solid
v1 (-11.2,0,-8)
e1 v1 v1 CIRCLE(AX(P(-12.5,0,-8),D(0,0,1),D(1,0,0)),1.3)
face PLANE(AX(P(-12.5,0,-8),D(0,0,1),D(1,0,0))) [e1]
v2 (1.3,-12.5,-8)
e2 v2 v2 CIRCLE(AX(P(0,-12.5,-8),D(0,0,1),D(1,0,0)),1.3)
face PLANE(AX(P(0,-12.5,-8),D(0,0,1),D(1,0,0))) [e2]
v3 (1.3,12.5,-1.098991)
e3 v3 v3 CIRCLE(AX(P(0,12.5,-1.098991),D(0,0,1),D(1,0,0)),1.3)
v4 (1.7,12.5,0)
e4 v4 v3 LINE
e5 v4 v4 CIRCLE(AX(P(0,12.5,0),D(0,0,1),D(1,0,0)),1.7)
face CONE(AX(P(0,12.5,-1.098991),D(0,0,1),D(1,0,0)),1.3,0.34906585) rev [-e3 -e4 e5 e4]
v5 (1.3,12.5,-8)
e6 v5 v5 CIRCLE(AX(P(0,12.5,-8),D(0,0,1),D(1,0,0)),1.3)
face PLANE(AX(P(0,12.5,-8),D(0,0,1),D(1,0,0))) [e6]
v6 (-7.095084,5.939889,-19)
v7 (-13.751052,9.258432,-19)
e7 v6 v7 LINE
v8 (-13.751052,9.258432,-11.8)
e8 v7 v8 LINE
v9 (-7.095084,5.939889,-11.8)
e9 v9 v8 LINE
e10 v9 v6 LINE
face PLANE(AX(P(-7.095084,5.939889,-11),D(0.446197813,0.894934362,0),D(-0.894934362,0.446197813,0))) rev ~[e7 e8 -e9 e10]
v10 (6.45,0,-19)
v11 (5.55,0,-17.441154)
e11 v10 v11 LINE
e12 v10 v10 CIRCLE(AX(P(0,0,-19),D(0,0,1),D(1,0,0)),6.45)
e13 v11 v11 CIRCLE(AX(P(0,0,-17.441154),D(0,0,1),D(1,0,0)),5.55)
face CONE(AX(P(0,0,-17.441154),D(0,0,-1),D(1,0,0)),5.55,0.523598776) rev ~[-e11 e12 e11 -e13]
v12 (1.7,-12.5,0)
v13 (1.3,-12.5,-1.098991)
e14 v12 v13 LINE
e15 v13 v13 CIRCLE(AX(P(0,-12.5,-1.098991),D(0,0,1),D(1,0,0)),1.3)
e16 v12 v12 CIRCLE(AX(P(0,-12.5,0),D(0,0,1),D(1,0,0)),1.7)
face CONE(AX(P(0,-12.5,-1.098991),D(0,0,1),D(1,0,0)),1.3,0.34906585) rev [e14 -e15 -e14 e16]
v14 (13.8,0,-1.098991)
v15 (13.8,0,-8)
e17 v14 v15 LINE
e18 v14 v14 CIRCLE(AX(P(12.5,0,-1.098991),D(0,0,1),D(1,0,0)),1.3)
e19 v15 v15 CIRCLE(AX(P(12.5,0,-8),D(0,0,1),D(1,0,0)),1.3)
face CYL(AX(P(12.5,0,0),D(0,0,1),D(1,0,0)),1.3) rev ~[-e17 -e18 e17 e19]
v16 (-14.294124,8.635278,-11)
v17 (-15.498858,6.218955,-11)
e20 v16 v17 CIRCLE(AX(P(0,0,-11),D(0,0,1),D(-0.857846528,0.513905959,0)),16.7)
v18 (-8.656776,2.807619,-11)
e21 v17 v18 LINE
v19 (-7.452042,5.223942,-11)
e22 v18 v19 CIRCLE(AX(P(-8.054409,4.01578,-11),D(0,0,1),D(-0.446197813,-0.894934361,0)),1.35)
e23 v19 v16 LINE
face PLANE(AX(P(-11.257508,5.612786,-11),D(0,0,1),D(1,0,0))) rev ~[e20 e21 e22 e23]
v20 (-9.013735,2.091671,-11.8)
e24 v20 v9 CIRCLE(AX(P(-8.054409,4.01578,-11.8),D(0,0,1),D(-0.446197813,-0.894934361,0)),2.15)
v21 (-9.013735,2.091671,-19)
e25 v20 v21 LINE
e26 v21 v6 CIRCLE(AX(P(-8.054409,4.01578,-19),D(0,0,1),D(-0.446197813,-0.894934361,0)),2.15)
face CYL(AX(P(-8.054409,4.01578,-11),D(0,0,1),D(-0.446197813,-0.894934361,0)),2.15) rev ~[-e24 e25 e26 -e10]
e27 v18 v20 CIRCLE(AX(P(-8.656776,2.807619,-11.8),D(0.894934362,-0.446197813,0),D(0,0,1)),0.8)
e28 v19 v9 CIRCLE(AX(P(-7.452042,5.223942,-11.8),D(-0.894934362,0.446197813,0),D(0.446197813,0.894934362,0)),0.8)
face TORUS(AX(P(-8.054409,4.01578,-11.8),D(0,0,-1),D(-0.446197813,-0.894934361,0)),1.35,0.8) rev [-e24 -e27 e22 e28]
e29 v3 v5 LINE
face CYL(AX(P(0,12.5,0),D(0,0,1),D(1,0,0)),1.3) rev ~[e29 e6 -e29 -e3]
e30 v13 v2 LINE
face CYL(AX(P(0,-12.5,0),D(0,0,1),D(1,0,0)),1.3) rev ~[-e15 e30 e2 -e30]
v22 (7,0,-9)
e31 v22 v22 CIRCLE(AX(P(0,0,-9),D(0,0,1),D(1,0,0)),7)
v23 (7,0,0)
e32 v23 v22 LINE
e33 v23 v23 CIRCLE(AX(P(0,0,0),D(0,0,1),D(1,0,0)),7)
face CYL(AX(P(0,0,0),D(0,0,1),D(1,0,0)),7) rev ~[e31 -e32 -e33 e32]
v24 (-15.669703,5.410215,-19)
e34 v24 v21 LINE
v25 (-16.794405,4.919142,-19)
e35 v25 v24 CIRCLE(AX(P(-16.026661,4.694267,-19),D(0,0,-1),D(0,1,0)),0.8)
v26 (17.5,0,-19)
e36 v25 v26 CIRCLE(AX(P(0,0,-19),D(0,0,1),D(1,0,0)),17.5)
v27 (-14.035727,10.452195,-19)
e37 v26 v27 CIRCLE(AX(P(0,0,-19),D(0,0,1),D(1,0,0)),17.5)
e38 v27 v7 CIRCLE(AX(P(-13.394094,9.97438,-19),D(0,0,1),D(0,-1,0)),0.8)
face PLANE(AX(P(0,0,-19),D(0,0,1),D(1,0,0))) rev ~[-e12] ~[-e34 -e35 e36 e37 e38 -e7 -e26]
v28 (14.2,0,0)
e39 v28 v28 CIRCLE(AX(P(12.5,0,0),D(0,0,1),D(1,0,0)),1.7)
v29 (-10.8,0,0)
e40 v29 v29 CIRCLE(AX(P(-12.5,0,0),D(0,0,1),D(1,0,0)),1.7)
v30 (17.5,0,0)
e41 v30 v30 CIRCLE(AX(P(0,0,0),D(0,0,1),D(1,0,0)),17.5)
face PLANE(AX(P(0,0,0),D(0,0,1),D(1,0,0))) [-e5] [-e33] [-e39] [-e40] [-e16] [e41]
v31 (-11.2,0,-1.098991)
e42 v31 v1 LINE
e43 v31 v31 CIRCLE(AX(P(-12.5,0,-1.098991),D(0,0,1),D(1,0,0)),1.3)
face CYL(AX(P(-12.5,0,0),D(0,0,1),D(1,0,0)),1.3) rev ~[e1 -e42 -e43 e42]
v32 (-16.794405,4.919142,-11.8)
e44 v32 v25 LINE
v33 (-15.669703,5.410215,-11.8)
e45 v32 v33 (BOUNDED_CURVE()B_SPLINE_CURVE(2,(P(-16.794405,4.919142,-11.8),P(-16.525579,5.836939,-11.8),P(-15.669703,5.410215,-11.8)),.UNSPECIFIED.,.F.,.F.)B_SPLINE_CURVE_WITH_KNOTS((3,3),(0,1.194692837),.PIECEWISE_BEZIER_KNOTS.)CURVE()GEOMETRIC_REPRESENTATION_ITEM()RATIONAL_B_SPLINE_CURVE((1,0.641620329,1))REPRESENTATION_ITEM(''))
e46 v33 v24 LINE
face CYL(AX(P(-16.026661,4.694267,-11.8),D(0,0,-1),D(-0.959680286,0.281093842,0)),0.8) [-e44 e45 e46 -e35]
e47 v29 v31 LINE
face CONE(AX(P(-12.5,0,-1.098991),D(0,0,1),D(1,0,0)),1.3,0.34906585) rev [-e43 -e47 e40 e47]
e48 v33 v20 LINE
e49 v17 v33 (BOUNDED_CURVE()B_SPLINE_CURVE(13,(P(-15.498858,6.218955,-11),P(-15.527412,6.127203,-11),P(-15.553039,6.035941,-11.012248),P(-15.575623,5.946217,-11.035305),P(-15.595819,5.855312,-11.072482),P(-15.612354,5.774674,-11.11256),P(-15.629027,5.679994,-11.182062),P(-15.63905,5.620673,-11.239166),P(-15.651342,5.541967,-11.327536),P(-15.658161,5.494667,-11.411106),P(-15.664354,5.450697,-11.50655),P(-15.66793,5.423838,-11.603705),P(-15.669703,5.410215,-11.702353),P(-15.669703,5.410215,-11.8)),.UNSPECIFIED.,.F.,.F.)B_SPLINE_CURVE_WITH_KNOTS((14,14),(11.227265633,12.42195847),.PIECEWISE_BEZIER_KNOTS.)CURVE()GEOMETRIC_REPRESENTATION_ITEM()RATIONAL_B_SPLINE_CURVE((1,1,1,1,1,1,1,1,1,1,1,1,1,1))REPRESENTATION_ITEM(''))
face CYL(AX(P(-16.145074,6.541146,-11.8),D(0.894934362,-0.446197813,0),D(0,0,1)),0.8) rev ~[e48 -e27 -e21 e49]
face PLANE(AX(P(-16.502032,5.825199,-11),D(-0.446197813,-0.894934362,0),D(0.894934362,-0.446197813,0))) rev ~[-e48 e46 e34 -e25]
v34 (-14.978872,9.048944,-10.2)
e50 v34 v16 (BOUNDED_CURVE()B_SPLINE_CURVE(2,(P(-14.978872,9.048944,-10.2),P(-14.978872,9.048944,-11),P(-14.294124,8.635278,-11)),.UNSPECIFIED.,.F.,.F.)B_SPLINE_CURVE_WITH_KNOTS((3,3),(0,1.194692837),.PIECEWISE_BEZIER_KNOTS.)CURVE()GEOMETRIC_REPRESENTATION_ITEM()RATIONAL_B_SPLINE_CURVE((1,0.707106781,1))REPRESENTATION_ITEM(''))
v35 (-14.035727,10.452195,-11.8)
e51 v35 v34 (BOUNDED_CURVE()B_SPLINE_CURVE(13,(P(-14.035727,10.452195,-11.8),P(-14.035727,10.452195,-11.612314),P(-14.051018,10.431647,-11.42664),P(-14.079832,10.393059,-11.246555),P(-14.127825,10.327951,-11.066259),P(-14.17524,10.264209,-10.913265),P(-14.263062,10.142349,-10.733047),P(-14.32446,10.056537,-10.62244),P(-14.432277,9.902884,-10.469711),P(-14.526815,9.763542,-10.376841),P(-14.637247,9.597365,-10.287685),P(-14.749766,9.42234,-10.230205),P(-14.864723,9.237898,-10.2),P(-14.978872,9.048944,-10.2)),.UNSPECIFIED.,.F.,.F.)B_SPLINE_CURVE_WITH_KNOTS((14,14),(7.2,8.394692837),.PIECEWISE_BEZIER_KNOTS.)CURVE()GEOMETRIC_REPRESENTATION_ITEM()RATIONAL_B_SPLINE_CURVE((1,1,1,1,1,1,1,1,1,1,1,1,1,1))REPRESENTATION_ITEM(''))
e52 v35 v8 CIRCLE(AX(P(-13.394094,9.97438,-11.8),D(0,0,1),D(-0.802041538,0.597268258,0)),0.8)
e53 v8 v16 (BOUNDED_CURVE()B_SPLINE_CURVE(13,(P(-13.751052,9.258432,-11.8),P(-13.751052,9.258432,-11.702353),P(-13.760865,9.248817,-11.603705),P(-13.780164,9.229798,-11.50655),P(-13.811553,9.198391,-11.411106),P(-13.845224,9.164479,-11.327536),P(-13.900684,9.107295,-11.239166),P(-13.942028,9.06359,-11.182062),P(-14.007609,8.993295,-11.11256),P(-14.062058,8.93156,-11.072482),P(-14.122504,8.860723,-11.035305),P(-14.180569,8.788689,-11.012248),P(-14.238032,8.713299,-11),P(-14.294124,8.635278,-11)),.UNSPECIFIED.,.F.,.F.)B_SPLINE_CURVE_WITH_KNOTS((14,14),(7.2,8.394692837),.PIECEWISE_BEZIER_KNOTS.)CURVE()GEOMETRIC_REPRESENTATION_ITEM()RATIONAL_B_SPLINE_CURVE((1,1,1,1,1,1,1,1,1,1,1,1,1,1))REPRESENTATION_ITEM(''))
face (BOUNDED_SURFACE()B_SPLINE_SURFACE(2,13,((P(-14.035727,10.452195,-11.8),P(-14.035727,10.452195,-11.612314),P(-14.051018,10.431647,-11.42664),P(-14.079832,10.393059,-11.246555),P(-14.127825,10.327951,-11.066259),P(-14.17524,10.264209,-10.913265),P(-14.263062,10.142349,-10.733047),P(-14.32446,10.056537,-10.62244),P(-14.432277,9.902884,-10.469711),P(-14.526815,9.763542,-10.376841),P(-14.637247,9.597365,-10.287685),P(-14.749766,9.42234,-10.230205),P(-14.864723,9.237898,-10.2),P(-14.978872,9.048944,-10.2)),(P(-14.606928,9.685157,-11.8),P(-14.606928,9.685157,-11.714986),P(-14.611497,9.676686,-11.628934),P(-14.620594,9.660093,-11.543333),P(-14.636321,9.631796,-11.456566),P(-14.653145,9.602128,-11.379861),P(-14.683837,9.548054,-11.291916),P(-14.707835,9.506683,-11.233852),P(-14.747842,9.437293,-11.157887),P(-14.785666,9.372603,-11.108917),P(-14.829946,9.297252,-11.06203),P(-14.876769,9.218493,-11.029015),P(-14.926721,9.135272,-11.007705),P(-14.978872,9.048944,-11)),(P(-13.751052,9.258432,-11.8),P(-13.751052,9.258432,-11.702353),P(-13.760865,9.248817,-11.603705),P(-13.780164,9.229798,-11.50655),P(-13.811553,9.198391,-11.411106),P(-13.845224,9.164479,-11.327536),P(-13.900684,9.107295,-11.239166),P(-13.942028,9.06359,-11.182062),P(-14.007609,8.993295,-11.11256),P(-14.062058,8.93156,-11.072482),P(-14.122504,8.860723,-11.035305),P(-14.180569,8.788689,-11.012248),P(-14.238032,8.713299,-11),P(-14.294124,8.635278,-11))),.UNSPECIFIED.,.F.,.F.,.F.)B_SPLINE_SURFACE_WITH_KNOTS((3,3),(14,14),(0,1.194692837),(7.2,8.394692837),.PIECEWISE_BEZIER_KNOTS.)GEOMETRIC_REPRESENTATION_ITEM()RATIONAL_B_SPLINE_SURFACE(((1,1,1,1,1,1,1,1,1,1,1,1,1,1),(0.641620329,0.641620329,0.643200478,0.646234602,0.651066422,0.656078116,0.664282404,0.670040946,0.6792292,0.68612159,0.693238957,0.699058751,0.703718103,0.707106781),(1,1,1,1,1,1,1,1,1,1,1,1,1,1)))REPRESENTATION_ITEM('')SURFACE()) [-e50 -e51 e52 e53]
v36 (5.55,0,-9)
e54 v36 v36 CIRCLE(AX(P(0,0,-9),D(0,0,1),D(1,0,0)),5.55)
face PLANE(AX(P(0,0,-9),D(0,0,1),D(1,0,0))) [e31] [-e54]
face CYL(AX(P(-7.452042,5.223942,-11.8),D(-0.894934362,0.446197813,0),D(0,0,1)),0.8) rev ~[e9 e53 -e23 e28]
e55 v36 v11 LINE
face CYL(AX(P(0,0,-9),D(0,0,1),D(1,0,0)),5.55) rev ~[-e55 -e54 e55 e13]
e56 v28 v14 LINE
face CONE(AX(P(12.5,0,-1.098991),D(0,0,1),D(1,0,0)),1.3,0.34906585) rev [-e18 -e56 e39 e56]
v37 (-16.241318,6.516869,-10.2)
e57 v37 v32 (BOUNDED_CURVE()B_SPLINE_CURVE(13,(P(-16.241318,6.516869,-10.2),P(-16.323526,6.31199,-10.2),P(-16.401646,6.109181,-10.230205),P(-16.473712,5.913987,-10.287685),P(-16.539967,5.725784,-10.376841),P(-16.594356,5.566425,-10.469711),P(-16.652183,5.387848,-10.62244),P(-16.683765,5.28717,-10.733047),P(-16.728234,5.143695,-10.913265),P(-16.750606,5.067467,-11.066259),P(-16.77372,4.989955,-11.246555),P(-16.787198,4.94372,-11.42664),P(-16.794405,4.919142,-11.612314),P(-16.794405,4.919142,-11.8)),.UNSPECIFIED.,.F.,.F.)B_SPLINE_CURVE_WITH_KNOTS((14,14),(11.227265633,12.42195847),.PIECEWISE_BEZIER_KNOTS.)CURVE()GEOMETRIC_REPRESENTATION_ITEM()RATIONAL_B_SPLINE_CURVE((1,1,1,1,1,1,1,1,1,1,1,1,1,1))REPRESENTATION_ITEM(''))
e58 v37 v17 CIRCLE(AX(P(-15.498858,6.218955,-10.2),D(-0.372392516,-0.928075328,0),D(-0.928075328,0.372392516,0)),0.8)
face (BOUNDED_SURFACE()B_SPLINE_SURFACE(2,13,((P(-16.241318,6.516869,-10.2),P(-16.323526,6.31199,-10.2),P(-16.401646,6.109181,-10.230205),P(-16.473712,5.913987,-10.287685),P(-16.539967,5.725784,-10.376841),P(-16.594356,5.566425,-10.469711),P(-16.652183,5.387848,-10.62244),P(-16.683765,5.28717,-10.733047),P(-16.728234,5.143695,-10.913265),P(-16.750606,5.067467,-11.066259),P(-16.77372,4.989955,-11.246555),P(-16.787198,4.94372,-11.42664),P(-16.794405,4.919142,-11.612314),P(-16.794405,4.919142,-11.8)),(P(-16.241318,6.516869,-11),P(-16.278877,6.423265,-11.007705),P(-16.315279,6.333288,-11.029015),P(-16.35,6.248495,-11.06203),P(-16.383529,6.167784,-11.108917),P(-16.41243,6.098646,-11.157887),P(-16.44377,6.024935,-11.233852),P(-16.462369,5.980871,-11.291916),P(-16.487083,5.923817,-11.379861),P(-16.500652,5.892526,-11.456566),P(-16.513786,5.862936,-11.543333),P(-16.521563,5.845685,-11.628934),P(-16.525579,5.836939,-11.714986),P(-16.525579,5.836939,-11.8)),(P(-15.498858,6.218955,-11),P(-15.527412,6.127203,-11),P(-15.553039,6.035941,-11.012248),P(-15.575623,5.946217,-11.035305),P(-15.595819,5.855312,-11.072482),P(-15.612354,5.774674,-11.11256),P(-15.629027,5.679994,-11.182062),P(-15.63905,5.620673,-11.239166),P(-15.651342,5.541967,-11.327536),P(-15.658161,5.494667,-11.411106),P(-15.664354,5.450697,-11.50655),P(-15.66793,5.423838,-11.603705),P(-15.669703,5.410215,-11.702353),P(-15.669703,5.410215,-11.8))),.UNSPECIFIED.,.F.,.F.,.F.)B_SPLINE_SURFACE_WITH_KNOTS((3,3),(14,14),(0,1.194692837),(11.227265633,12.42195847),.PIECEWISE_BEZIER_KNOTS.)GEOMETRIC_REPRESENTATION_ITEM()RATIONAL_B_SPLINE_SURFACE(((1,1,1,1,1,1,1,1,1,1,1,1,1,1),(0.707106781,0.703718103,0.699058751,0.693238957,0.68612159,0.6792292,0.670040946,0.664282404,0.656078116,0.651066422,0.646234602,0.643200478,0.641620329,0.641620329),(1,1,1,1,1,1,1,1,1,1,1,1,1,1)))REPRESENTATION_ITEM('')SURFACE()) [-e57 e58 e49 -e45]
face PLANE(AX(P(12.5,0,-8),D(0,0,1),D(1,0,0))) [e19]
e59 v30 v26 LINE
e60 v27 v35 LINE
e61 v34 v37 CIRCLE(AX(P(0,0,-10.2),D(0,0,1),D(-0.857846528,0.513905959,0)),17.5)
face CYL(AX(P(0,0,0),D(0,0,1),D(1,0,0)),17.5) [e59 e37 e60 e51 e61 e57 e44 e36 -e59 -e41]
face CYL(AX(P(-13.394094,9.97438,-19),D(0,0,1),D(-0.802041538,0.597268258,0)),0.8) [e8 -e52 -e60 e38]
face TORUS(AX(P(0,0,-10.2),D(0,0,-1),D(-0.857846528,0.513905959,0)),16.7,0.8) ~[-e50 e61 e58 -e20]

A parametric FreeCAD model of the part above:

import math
import FreeCAD as App
import Part
import Sketcher

V = App.Vector
Q = App.Units.Quantity


def edges_at(feature, points):
    """Names of the edges that pass closest to the given points."""
    edges = feature.Shape.Edges
    near = lambda p: min(range(len(edges)), key=lambda i: edges[i].distToShape(Part.Vertex(*p))[0])
    return sorted({f"Edge{near(p) + 1}" for p in points})

doc = App.newDocument("Part")
body = doc.addObject("PartDesign::Body", "Body")

sketch1 = doc.addObject("Sketcher::SketchObject", "Sketch")
body.addObject(sketch1)
sketch1.AttachmentSupport = (doc.XY_Plane, [""])
sketch1.MapMode = "FlatFace"
sketch1.addGeometry(Part.Circle(V(0, 0, 0), V(0, 0, 1), 18), False)
sketch1.addConstraint(Sketcher.Constraint("Coincident", 0, 3, -1, 1))
sketch1.addConstraint(Sketcher.Constraint("Diameter", 0, 35.0))
pad1 = doc.addObject("PartDesign::Pad", "Pad")
body.addObject(pad1)
pad1.Profile = sketch1
pad1.Length = 19
pad1.Reversed = True

sketch2 = doc.addObject("Sketcher::SketchObject", "Sketch001")
body.addObject(sketch2)
sketch2.AttachmentSupport = (doc.XY_Plane, [""])
sketch2.MapMode = "FlatFace"
sketch2.addGeometry(Part.Circle(V(12.5, 0, 0), V(0, 0, 1), 1.3), False)
sketch2.addGeometry(Part.Circle(V(0, -12.5, 0), V(0, 0, 1), 1.3), False)
sketch2.addGeometry(Part.Circle(V(-12.5, 0, 0), V(0, 0, 1), 1.3), False)
sketch2.addGeometry(Part.Circle(V(0, 12.5, 0), V(0, 0, 1), 1.3), False)
sketch2.addConstraint(Sketcher.Constraint("Equal", 0, 1))
sketch2.addConstraint(Sketcher.Constraint("Equal", 1, 2))
sketch2.addConstraint(Sketcher.Constraint("Equal", 2, 3))
sketch2.addConstraint(Sketcher.Constraint("Symmetric", 0, 3, 2, 3, -1, 1))
sketch2.addConstraint(Sketcher.Constraint("Symmetric", 1, 3, 3, 3, -1, 1))
sketch2.addConstraint(Sketcher.Constraint("PointOnObject", 0, 3, -1))
sketch2.addConstraint(Sketcher.Constraint("PointOnObject", 1, 3, -2))
sketch2.addConstraint(Sketcher.Constraint("Diameter", 0, 2.6))
sketch2.addConstraint(Sketcher.Constraint("DistanceX", 2, 3, 0, 3, 25.0))
sketch2.addConstraint(Sketcher.Constraint("DistanceY", 1, 3, 3, 3, 25.0))
pocket1 = doc.addObject("PartDesign::Pocket", "Pocket")
body.addObject(pocket1)
pocket1.Profile = sketch2
pocket1.Length = 8

sketch3 = doc.addObject("Sketcher::SketchObject", "Sketch002")
body.addObject(sketch3)
sketch3.AttachmentSupport = (doc.XY_Plane, [""])
sketch3.MapMode = "FlatFace"
sketch3.addGeometry(Part.Circle(V(0, 0, 0), V(0, 0, 1), 7), False)
sketch3.addConstraint(Sketcher.Constraint("Coincident", 0, 3, -1, 1))
sketch3.addConstraint(Sketcher.Constraint("Diameter", 0, 14.0))
pocket2 = doc.addObject("PartDesign::Pocket", "Pocket001")
body.addObject(pocket2)
pocket2.Profile = sketch3
pocket2.Length = 9

sketch4 = doc.addObject("Sketcher::SketchObject", "Sketch003")
body.addObject(sketch4)
sketch4.AttachmentSupport = (doc.XY_Plane, [""])
sketch4.MapMode = "FlatFace"
sketch4.AttachmentOffset = App.Placement(V(0, 0, -9), App.Rotation())
sketch4.addGeometry(Part.Circle(V(0, 0, 0), V(0, 0, 1), 6), False)
sketch4.addConstraint(Sketcher.Constraint("Coincident", 0, 3, -1, 1))
sketch4.addConstraint(Sketcher.Constraint("Diameter", 0, 11.1))
pocket3 = doc.addObject("PartDesign::Pocket", "Pocket002")
body.addObject(pocket3)
pocket3.Profile = sketch4
pocket3.Length = 10

sketch5 = doc.addObject("Sketcher::SketchObject", "Sketch004")
body.addObject(sketch5)
sketch5.AttachmentSupport = (doc.XY_Plane, [""])
sketch5.MapMode = "FlatFace"
sketch5.AttachmentOffset = App.Placement(V(0, 0, -11), App.Rotation())
sketch5.addGeometry(Part.LineSegment(V(-14.6, 9.7, 0), V(-7.1, 5.9, 0)), False)
sketch5.addGeometry(Part.ArcOfCircle(Part.Circle(V(-8.1, 4, 0), V(0, 0, 1), 2.1), math.radians(-117), math.radians(63)), False)
sketch5.addGeometry(Part.LineSegment(V(-9, 2.1, 0), V(-16.5, 5.8, 0)), False)
sketch5.addGeometry(Part.ArcOfCircle(Part.Circle(V(0, 0, 0), V(0, 0, 1), 17.5), math.radians(146.44), math.radians(160.56)), False)
sketch5.addConstraint(Sketcher.Constraint("Tangent", 0, 2, 1, 2))
sketch5.addConstraint(Sketcher.Constraint("Tangent", 1, 1, 2, 1))
sketch5.addConstraint(Sketcher.Constraint("Coincident", 2, 2, 3, 2))
sketch5.addConstraint(Sketcher.Constraint("Coincident", 3, 1, 0, 1))
sketch5.addConstraint(Sketcher.Constraint("Coincident", 3, 3, -1, 1))
sketch5.addConstraint(Sketcher.Constraint("Parallel", 0, 2))
sketch5.addConstraint(Sketcher.Constraint("Equal", 0, 2))
sketch5.addConstraint(Sketcher.Constraint("Radius", 3, 17.5))
sketch5.addConstraint(Sketcher.Constraint("Radius", 1, 2.15))
sketch5.addConstraint(Sketcher.Constraint("Angle", 0, Q("-26.5 deg")))
sketch5.addConstraint(Sketcher.Constraint("DistanceX", 1, 3, -1, 1, 8.054409))
pocket4 = doc.addObject("PartDesign::Pocket", "Pocket003")
body.addObject(pocket4)
pocket4.Profile = sketch5
pocket4.Length = 8
doc.recompute()

fillet = doc.addObject("PartDesign::Fillet", "Fillet")
body.addObject(fillet)
fillet.Base = (pocket4, edges_at(pocket4, [(-6.13, 3.056, -11), (-10.839, 7.807, -11), (-12.758, 3.958, -11)]))
fillet.Radius = 0.8
doc.recompute()

chamfer = doc.addObject("PartDesign::Chamfer", "Chamfer")
body.addObject(chamfer)
chamfer.Base = (fillet, edges_at(fillet, [(-5.55, 0, -19)]))
chamfer.ChamferType = "Two distances"
chamfer.Size = 0.9
chamfer.Size2 = 1.558846
doc.recompute()

chamfer2 = doc.addObject("PartDesign::Chamfer", "Chamfer001")
body.addObject(chamfer2)
chamfer2.Base = (chamfer, edges_at(chamfer, [
    (-1.3, -12.5, 0),
    (-13.8, 0, 0),
    (-1.3, 12.5, 0),
    (11.2, 0, 0),
]))
chamfer2.ChamferType = "Two distances"
chamfer2.Size = 0.4
chamfer2.Size2 = 1.098991
doc.recompute()

fillet2 = doc.addObject("PartDesign::Fillet", "Fillet001")
body.addObject(fillet2)
fillet2.Base = (chamfer2, edges_at(chamfer2, [
    (-15.661, 7.808, -11),
    (-16.502, 5.825, -15.4),
    (-14.583, 9.673, -15.4),
    (-16.422, 6.048, -11.234),
    (-14.713, 9.476, -11.234),
]))
fillet2.Radius = 0.8

doc.recompute()
